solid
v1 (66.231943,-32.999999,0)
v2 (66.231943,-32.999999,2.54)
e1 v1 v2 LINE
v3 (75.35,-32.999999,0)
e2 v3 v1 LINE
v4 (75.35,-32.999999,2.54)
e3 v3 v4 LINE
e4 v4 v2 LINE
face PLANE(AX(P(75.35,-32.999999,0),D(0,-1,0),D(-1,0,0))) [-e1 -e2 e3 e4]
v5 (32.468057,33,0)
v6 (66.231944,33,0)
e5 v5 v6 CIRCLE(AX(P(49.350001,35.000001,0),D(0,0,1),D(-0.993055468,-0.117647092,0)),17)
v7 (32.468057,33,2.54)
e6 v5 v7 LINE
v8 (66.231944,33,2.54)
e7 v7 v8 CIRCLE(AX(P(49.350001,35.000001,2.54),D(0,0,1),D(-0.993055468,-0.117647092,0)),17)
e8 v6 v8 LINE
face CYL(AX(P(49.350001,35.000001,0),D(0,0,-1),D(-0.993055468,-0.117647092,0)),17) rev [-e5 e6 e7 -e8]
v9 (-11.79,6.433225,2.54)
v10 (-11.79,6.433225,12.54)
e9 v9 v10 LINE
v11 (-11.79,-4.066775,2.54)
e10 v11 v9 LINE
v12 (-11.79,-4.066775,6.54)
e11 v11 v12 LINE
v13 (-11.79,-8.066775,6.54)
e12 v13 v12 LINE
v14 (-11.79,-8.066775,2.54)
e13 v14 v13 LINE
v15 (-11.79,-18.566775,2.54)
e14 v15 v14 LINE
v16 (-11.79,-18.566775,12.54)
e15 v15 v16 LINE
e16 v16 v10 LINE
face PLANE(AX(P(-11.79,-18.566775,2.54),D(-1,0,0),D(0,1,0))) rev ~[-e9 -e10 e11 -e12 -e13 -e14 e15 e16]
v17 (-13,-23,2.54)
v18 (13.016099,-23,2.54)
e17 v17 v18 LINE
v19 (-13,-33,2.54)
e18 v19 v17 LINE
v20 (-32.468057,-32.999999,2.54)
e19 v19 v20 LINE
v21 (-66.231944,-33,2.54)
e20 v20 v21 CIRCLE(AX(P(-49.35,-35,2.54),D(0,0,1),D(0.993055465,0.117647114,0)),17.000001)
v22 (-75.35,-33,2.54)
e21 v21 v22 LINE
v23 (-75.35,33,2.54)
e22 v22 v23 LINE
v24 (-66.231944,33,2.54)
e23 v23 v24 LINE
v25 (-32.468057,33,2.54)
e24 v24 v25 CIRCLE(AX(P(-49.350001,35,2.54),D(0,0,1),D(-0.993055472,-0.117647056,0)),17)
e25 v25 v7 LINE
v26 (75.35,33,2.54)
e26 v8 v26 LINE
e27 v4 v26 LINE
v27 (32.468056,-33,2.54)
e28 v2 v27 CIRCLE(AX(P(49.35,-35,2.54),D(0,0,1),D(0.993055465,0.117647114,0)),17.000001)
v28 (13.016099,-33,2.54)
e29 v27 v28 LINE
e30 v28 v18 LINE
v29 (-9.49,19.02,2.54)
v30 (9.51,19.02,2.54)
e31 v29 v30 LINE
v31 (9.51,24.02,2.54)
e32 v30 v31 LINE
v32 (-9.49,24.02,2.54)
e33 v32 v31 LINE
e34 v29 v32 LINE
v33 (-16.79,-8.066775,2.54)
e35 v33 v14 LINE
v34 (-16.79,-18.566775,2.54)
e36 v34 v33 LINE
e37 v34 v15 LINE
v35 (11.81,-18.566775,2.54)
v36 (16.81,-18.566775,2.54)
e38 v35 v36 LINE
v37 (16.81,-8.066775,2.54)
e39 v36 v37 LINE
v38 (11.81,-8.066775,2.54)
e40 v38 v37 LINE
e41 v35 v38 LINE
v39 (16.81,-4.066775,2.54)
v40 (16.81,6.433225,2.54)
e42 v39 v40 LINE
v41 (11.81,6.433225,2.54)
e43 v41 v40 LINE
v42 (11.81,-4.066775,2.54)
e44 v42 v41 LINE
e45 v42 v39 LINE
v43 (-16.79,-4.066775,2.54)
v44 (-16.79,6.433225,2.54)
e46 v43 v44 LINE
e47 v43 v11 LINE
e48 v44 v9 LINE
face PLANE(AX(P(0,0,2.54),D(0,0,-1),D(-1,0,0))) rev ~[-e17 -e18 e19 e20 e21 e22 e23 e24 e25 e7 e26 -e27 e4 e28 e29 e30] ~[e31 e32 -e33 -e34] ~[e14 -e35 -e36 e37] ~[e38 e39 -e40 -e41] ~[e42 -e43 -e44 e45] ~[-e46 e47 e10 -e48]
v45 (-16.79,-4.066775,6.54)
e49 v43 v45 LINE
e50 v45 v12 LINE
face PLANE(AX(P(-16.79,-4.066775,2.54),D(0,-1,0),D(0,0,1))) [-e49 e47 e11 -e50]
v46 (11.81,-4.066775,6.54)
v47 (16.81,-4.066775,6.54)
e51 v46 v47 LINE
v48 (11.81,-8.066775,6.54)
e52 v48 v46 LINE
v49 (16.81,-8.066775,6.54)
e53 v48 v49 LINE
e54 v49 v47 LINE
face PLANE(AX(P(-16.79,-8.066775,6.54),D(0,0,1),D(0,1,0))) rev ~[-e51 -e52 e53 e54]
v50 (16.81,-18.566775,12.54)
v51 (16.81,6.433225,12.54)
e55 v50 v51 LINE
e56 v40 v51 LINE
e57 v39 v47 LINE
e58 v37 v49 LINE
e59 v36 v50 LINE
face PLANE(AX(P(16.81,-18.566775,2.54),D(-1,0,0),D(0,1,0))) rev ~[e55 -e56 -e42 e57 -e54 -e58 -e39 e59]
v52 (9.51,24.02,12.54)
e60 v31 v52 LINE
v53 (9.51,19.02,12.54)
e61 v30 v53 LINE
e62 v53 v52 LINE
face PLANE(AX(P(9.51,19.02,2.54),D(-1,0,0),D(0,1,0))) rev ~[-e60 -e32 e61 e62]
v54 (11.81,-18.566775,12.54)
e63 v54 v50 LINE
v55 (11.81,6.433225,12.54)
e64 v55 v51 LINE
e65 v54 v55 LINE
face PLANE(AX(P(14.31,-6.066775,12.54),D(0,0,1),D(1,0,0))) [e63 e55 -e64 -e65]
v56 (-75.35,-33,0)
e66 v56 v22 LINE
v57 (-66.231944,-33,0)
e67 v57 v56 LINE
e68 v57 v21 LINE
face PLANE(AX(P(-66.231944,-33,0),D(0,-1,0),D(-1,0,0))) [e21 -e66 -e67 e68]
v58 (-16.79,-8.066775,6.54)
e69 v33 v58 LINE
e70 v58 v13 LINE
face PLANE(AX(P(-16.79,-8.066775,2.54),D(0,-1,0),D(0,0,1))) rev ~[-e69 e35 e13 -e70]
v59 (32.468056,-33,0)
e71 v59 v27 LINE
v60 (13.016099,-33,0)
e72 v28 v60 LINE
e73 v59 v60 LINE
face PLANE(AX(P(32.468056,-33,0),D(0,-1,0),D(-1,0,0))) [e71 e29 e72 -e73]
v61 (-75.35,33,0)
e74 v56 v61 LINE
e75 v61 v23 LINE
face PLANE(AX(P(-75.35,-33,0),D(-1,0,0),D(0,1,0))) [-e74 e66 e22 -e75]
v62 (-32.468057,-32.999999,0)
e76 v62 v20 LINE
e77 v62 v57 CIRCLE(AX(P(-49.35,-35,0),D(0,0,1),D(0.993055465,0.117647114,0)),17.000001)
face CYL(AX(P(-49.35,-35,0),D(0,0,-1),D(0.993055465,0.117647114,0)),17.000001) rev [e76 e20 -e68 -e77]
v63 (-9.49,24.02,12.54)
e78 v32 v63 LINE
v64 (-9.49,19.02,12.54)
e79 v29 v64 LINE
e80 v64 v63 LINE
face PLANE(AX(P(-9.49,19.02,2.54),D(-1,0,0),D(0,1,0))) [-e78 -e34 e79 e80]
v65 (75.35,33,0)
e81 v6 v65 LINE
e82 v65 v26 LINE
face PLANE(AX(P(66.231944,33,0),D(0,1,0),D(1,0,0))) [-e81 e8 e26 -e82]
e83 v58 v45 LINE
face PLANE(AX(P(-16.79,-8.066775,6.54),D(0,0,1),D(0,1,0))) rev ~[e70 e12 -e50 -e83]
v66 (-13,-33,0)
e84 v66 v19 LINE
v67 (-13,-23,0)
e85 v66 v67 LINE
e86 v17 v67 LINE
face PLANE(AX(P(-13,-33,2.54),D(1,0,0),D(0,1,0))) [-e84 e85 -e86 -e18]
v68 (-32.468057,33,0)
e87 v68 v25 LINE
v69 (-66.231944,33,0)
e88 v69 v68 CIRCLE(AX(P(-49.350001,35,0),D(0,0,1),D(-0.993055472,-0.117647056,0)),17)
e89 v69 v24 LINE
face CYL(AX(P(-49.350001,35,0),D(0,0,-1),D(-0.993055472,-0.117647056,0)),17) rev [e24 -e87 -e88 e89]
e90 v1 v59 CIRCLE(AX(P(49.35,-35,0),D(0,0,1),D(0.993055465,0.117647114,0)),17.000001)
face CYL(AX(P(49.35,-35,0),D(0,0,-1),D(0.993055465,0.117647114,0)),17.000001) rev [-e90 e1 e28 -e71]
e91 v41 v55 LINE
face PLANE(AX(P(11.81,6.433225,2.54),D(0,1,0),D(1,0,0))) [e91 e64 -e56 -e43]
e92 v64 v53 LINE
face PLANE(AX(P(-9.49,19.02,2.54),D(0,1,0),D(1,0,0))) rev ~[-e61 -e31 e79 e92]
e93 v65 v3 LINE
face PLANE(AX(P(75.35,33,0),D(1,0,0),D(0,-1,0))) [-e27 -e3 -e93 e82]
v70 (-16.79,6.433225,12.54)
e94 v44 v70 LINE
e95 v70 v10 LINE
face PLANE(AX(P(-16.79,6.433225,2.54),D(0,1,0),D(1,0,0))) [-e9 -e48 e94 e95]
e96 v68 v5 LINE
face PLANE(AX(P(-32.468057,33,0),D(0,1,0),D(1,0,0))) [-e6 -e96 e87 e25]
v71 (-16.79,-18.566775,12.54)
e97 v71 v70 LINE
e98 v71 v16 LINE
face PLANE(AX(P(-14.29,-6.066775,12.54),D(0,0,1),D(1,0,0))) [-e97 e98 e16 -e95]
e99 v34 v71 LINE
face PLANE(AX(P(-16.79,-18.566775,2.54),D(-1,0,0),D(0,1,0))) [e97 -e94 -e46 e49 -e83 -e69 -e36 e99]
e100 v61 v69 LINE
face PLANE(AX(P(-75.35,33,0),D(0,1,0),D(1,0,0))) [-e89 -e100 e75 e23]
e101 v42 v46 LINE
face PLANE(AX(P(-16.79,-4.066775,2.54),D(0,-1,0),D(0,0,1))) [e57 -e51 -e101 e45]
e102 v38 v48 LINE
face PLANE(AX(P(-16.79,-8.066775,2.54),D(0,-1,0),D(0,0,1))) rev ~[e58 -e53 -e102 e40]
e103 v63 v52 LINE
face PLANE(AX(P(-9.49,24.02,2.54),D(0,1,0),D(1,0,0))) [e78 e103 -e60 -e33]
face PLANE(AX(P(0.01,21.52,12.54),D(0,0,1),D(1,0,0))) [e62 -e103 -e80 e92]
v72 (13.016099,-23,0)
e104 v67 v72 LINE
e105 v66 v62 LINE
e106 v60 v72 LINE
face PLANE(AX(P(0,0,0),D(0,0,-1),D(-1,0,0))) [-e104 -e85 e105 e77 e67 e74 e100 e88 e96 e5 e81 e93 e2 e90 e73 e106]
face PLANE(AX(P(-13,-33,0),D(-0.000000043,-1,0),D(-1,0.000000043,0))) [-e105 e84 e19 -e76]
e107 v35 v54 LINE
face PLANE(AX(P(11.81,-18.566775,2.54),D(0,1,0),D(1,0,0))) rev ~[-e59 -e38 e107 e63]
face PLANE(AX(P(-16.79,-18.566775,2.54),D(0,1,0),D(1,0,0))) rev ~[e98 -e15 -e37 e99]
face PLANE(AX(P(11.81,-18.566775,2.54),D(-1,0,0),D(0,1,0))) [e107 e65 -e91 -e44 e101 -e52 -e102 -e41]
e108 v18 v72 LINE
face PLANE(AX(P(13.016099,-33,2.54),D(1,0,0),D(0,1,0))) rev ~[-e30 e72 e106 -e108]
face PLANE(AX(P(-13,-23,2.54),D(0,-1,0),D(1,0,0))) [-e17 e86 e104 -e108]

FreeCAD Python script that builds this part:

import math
import FreeCAD as App
import Part
import Sketcher
from FreeCAD import Vector


def add_polygon(sketch, points):
    """Adds a closed chain of lines whose ends are joined by coincident constraints."""
    first, n = sketch.GeometryCount, len(points)
    for a, b in zip(points, points[1:] + points[:1]):
        sketch.addGeometry(Part.LineSegment(App.Vector(*a, 0), App.Vector(*b, 0)), False)
    for i in range(n):
        sketch.addConstraint(Sketcher.Constraint("Coincident", first + i, 2, first + (i + 1) % n, 1))

doc = App.newDocument("Part")
params = doc.addObject("Spreadsheet::Sheet", "Params")
for row, (alias, value) in enumerate([
    ("sketch1_radius", "17 mm"),
    ("sketch1_height", "66 mm"),
    ("pad1_length", "2.54 mm"),
    ("sketch2_height", "10 mm"),
    ("pocket1_length", "2.54 mm"),
    ("sketch3_width", "5 mm"),
    ("sketch3_height", "25 mm"),
    ("pad2_length", "10 mm"),
    ("sketch4_width", "19 mm"),
    ("sketch4_height", "5 mm"),
    ("pad3_length", "10 mm"),
    ("sketch5_width", "5 mm"),
    ("sketch5_height", "25 mm"),
    ("pad4_length", "10 mm"),
    ("sketch6_width", "4 mm"),
], start=1):
    params.set(f"A{row}", alias)
    params.set(f"B{row}", "=" + value)
    params.setAlias(f"B{row}", alias)

body = doc.addObject("PartDesign::Body", "Body")

sketch1 = body.newObject("Sketcher::SketchObject", "Sketch")
sketch1.AttachmentSupport = (doc.getObject("XY_Plane"), [""])
sketch1.MapMode = "FlatFace"
sketch1.addGeometry(Part.LineSegment(Vector(32.468057, 33, 0), Vector(-32.468057, 33, 0)), False)
sketch1.addGeometry(Part.ArcOfCircle(Part.Circle(Vector(-49.350001, 35, 0), Vector(0, 0, 1), 17), math.radians(-173.243673), math.radians(-6.756327)), False)
sketch1.addGeometry(Part.LineSegment(Vector(-66.231944, 33, 0), Vector(-75.35, 33, 0)), False)
sketch1.addGeometry(Part.LineSegment(Vector(-75.35, 33, 0), Vector(-75.35, -33, 0)), False)
sketch1.addGeometry(Part.LineSegment(Vector(-75.35, -33, 0), Vector(-66.231944, -33, 0)), False)
sketch1.addGeometry(Part.ArcOfCircle(Part.Circle(Vector(-49.35, -35, 0), Vector(0, 0, 1), 17.000001), math.radians(6.75633), math.radians(173.243673)), False)
sketch1.addGeometry(Part.LineSegment(Vector(-32.468057, -32.999999, 0), Vector(-13, -33, 0)), False)
sketch1.addGeometry(Part.LineSegment(Vector(-13, -33, 0), Vector(32.468056, -33, 0)), False)
sketch1.addGeometry(Part.ArcOfCircle(Part.Circle(Vector(49.35, -35, 0), Vector(0, 0, 1), 17.000001), math.radians(6.75633), math.radians(173.243673)), False)
sketch1.addGeometry(Part.LineSegment(Vector(66.231943, -32.999999, 0), Vector(75.35, -32.999999, 0)), False)
sketch1.addGeometry(Part.LineSegment(Vector(75.35, -32.999999, 0), Vector(75.35, 33, 0)), False)
sketch1.addGeometry(Part.LineSegment(Vector(75.35, 33, 0), Vector(66.231944, 33, 0)), False)
sketch1.addGeometry(Part.ArcOfCircle(Part.Circle(Vector(49.350001, 35.000001, 0), Vector(0, 0, 1), 17), math.radians(-173.243671), math.radians(-6.756328)), False)
sketch1.addConstraint(Sketcher.Constraint("Coincident", 0, 2, 1, 2))
sketch1.addConstraint(Sketcher.Constraint("Coincident", 1, 1, 2, 1))
sketch1.addConstraint(Sketcher.Constraint("Coincident", 2, 2, 3, 1))
sketch1.addConstraint(Sketcher.Constraint("Coincident", 3, 2, 4, 1))
sketch1.addConstraint(Sketcher.Constraint("Coincident", 4, 2, 5, 2))
sketch1.addConstraint(Sketcher.Constraint("Coincident", 5, 1, 6, 1))
sketch1.addConstraint(Sketcher.Constraint("Coincident", 6, 2, 7, 1))
sketch1.addConstraint(Sketcher.Constraint("Coincident", 7, 2, 8, 2))
sketch1.addConstraint(Sketcher.Constraint("Coincident", 8, 1, 9, 1))
sketch1.addConstraint(Sketcher.Constraint("Coincident", 9, 2, 10, 1))
sketch1.addConstraint(Sketcher.Constraint("Coincident", 10, 2, 11, 1))
sketch1.addConstraint(Sketcher.Constraint("Coincident", 11, 2, 12, 2))
sketch1.addConstraint(Sketcher.Constraint("Coincident", 12, 1, 0, 1))
sketch1.addConstraint(Sketcher.Constraint("Horizontal", 0))
sketch1.addConstraint(Sketcher.Constraint("Horizontal", 2))
sketch1.addConstraint(Sketcher.Constraint("Vertical", 3))
sketch1.addConstraint(Sketcher.Constraint("Horizontal", 4))
sketch1.addConstraint(Sketcher.Constraint("Horizontal", 6))
sketch1.addConstraint(Sketcher.Constraint("Horizontal", 7))
sketch1.addConstraint(Sketcher.Constraint("Horizontal", 9))
sketch1.addConstraint(Sketcher.Constraint("Vertical", 10))
sketch1.addConstraint(Sketcher.Constraint("Horizontal", 11))
sketch1.addConstraint(Sketcher.Constraint("Equal", 1, 5))
sketch1.addConstraint(Sketcher.Constraint("Equal", 5, 8))
sketch1.addConstraint(Sketcher.Constraint("Equal", 8, 12))
sketch1.addConstraint(Sketcher.Constraint("Symmetric", 1, 3, 8, 3, -1, 1))
sketch1.addConstraint(Sketcher.Constraint("Symmetric", 5, 3, 12, 3, -1, 1))
sketch1.addConstraint(Sketcher.Constraint("Symmetric", 2, 2, 9, 2, -1, 1))
sketch1.addConstraint(Sketcher.Constraint("Symmetric", 5, 3, 8, 3, -2))
sketch1.addConstraint(Sketcher.Constraint("Horizontal", 0, 2, 1, 1))
sketch1.addConstraint(Sketcher.Constraint("Horizontal", 4, 2, 5, 1))
sketch1.addConstraint(Sketcher.Constraint("Horizontal", 7, 2, 8, 1))
sketch1.addConstraint(Sketcher.Constraint("Horizontal", 2, 2, 10, 2))
sketch1.addConstraint(Sketcher.Constraint("Radius", 1, 17.0))
sketch1.addConstraint(Sketcher.Constraint("DistanceY", 3, 2, 3, 1, 66.0))
sketch1.addConstraint(Sketcher.Constraint("DistanceY", -1, 1, 1, 3, 35.0))
sketch1.addConstraint(Sketcher.Constraint("DistanceX", 6, 2, -1, 1, 13.0))
sketch1.addConstraint(Sketcher.Constraint("DistanceX", 2, 2, 1, 3, 25.999999))
sketch1.addConstraint(Sketcher.Constraint("DistanceX", 5, 3, 8, 3, 98.7))
sketch1.setExpression("Constraints[33]", "Params.sketch1_radius")
sketch1.setExpression("Constraints[34]", "Params.sketch1_height")
pad1 = body.newObject("PartDesign::Pad", "Pad")
pad1.Profile = sketch1
pad1.setExpression("Length", "Params.pad1_length")

sketch2 = body.newObject("Sketcher::SketchObject", "Sketch001")
sketch2.AttachmentSupport = (doc.getObject("XY_Plane"), [""])
sketch2.MapMode = "FlatFace"
sketch2.AttachmentOffset = App.Placement(Vector(0, 0, 2.54), App.Rotation())
add_polygon(sketch2, [(-13, -23), (-13, -33), (13.016099, -33), (13.016099, -23)])
sketch2.addConstraint(Sketcher.Constraint("Vertical", 0))
sketch2.addConstraint(Sketcher.Constraint("Horizontal", 1))
sketch2.addConstraint(Sketcher.Constraint("Vertical", 2))
sketch2.addConstraint(Sketcher.Constraint("Horizontal", 3))
sketch2.addConstraint(Sketcher.Constraint("DistanceY", 0, 2, 0, 1, 10.0))
sketch2.addConstraint(Sketcher.Constraint("DistanceX", 0, 2, -1, 1, 13.0))
sketch2.addConstraint(Sketcher.Constraint("DistanceY", 0, 2, -1, 1, 33.0))
sketch2.addConstraint(Sketcher.Constraint("DistanceX", 1, 1, 1, 2, 26.016099))
sketch2.setExpression("Constraints[8]", "Params.sketch2_height")
pocket1 = body.newObject("PartDesign::Pocket", "Pocket")
pocket1.Profile = sketch2
pocket1.setExpression("Length", "Params.pocket1_length")

sketch3 = body.newObject("Sketcher::SketchObject", "Sketch002")
sketch3.AttachmentSupport = (doc.getObject("XY_Plane"), [""])
sketch3.MapMode = "FlatFace"
sketch3.AttachmentOffset = App.Placement(Vector(0, 0, 2.54), App.Rotation())
add_polygon(sketch3, [(-16.79, 6.433225), (-16.79, -18.566775), (-11.79, -18.566775), (-11.79, 6.433225)])
sketch3.addConstraint(Sketcher.Constraint("Vertical", 0))
sketch3.addConstraint(Sketcher.Constraint("Horizontal", 1))
sketch3.addConstraint(Sketcher.Constraint("Vertical", 2))
sketch3.addConstraint(Sketcher.Constraint("Horizontal", 3))
sketch3.addConstraint(Sketcher.Constraint("DistanceX", 1, 1, 1, 2, 5.0))
sketch3.addConstraint(Sketcher.Constraint("DistanceY", 0, 2, 0, 1, 25.0))
sketch3.addConstraint(Sketcher.Constraint("DistanceX", 0, 2, -1, 1, 16.79))
sketch3.addConstraint(Sketcher.Constraint("DistanceY", 0, 2, -1, 1, 18.566775))
sketch3.setExpression("Constraints[8]", "Params.sketch3_width")
sketch3.setExpression("Constraints[9]", "Params.sketch3_height")
pad2 = body.newObject("PartDesign::Pad", "Pad001")
pad2.Profile = sketch3
pad2.setExpression("Length", "Params.pad2_length")

sketch4 = body.newObject("Sketcher::SketchObject", "Sketch003")
sketch4.AttachmentSupport = (doc.getObject("XY_Plane"), [""])
sketch4.MapMode = "FlatFace"
sketch4.AttachmentOffset = App.Placement(Vector(0, 0, 2.54), App.Rotation())
add_polygon(sketch4, [(-9.49, 24.02), (-9.49, 19.02), (9.51, 19.02), (9.51, 24.02)])
sketch4.addConstraint(Sketcher.Constraint("Vertical", 0))
sketch4.addConstraint(Sketcher.Constraint("Horizontal", 1))
sketch4.addConstraint(Sketcher.Constraint("Vertical", 2))
sketch4.addConstraint(Sketcher.Constraint("Horizontal", 3))
sketch4.addConstraint(Sketcher.Constraint("DistanceX", 1, 1, 1, 2, 19.0))
sketch4.addConstraint(Sketcher.Constraint("DistanceY", 0, 2, 0, 1, 5.0))
sketch4.addConstraint(Sketcher.Constraint("DistanceX", 0, 2, -1, 1, 9.49))
sketch4.addConstraint(Sketcher.Constraint("DistanceY", -1, 1, 0, 2, 19.02))
sketch4.setExpression("Constraints[8]", "Params.sketch4_width")
sketch4.setExpression("Constraints[9]", "Params.sketch4_height")
pad3 = body.newObject("PartDesign::Pad", "Pad002")
pad3.Profile = sketch4
pad3.setExpression("Length", "Params.pad3_length")

sketch5 = body.newObject("Sketcher::SketchObject", "Sketch004")
sketch5.AttachmentSupport = (doc.getObject("XY_Plane"), [""])
sketch5.MapMode = "FlatFace"
sketch5.AttachmentOffset = App.Placement(Vector(0, 0, 2.54), App.Rotation())
add_polygon(sketch5, [(11.81, 6.433225), (11.81, -18.566775), (16.81, -18.566775), (16.81, 6.433225)])
sketch5.addConstraint(Sketcher.Constraint("Vertical", 0))
sketch5.addConstraint(Sketcher.Constraint("Horizontal", 1))
sketch5.addConstraint(Sketcher.Constraint("Vertical", 2))
sketch5.addConstraint(Sketcher.Constraint("Horizontal", 3))
sketch5.addConstraint(Sketcher.Constraint("DistanceX", 1, 1, 1, 2, 5.0))
sketch5.addConstraint(Sketcher.Constraint("DistanceY", 0, 2, 0, 1, 25.0))
sketch5.addConstraint(Sketcher.Constraint("DistanceX", -1, 1, 0, 2, 11.81))
sketch5.addConstraint(Sketcher.Constraint("DistanceY", 0, 2, -1, 1, 18.566775))
sketch5.setExpression("Constraints[8]", "Params.sketch5_width")
sketch5.setExpression("Constraints[9]", "Params.sketch5_height")
pad4 = body.newObject("PartDesign::Pad", "Pad003")
pad4.Profile = sketch5
pad4.setExpression("Length", "Params.pad4_length")

sketch6 = body.newObject("Sketcher::SketchObject", "Sketch005")
sketch6.AttachmentSupport = (doc.getObject("YZ_Plane"), [""])
sketch6.MapMode = "FlatFace"
sketch6.AttachmentOffset = App.Placement(Vector(0, 0, -16.79), App.Rotation())
add_polygon(sketch6, [(-4.066775, 2.54), (-8.066775, 2.54), (-8.066775, 6.54), (-4.066775, 6.54)])
sketch6.addConstraint(Sketcher.Constraint("Horizontal", 0))
sketch6.addConstraint(Sketcher.Constraint("Vertical", 1))
sketch6.addConstraint(Sketcher.Constraint("Horizontal", 2))
sketch6.addConstraint(Sketcher.Constraint("Vertical", 3))
sketch6.addConstraint(Sketcher.Constraint("Equal", 2, 1))
sketch6.addConstraint(Sketcher.Constraint("DistanceX", 0, 2, 0, 1, 4.0))
sketch6.addConstraint(Sketcher.Constraint("DistanceY", -1, 1, 0, 2, 2.54))
sketch6.addConstraint(Sketcher.Constraint("DistanceX", 0, 2, -1, 1, 8.066775))
sketch6.setExpression("Constraints[9]", "Params.sketch6_width")
pocket2 = body.newObject("PartDesign::Pocket", "Pocket001")
pocket2.Profile = sketch6
pocket2.Type = "ThroughAll"
pocket2.Reversed = True

doc.recompute()
